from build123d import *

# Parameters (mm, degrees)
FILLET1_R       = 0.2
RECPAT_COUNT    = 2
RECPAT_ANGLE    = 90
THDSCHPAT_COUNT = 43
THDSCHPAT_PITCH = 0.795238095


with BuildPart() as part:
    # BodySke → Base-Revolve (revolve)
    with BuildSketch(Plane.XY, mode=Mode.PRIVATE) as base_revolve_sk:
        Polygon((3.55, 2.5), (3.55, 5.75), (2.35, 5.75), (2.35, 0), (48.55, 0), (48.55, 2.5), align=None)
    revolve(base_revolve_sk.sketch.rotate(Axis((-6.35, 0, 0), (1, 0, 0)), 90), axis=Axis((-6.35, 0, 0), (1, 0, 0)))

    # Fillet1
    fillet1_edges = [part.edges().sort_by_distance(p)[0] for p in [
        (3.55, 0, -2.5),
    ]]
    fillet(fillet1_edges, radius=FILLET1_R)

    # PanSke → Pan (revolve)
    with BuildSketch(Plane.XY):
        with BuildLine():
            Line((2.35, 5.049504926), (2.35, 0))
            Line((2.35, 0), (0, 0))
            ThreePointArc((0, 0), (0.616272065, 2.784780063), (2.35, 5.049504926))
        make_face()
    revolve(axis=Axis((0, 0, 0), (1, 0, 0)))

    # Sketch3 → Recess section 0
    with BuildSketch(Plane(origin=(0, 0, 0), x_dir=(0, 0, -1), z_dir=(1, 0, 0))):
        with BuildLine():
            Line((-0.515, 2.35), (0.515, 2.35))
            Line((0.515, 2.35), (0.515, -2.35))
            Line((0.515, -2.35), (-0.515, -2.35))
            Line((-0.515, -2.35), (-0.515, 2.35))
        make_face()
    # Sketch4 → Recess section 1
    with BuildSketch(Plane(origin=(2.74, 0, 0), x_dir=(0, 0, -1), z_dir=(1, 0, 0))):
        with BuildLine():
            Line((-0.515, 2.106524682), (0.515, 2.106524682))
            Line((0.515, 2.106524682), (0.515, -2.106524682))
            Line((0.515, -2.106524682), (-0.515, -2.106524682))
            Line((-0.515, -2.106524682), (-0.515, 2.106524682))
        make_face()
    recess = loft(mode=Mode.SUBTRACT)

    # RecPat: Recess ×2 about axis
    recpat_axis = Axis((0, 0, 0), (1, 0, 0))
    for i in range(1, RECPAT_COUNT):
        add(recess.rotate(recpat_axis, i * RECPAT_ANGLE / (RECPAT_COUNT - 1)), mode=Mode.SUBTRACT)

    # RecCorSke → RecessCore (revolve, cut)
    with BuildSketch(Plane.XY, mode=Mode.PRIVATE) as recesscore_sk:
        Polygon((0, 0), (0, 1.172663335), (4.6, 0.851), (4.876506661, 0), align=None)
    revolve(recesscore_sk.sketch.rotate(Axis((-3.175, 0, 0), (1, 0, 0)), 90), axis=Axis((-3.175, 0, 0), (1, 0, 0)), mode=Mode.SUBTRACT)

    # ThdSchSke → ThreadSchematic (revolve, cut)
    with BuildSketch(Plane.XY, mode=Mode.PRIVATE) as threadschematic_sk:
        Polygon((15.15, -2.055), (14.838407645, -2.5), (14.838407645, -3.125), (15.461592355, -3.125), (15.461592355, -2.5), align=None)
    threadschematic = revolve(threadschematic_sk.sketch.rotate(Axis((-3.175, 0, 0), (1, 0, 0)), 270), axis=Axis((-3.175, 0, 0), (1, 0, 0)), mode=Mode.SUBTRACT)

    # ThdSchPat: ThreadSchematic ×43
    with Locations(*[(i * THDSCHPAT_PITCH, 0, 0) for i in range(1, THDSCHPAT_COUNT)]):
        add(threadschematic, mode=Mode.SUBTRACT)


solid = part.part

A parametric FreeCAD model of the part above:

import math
import FreeCAD as App
import Part
import Sketcher
Q = App.Units.Quantity


def edges_at(feature, points):
    """Names of the edges that pass closest to the given points."""
    edges = feature.Shape.Edges
    near = lambda p: min(range(len(edges)), key=lambda i: edges[i].distToShape(Part.Vertex(*p))[0])
    return sorted({f"Edge{near(p) + 1}" for p in points})

doc = App.newDocument("Part")
params = doc.addObject("Spreadsheet::Sheet", "Params")
for row, (alias, value) in enumerate([
    ("sketch1_width", "45 mm"),
    ("sketch1_width2", "1.2 mm"),
    ("sketch1_height", "2.5 mm"),
    ("sketch1_height2", "3.25 mm"),
    ("revolution_angle", "360 deg"),
    ("fillet_radius", "0.2 mm"),
    ("sketch2_radius", "6.6 mm"),
    ("sketch2_width", "2.35 mm"),
    ("revolution2_angle", "360 deg"),
    ("sketch3_width", "4.7 mm"),
    ("sketch3_height", "1.03 mm"),
    ("sketch4_height", "1.03 mm"),
    ("groove_angle", "360 deg"),
    ("groove2_angle", "360 deg"),
    ("linearpattern_pitch", "0.795238 mm"),
], start=1):
    params.set(f"A{row}", alias)
    params.set(f"B{row}", "=" + value)
    params.setAlias(f"B{row}", alias)

body = doc.addObject("PartDesign::Body", "Body")

# Sketch on XY plane
sketch1 = body.newObject("Sketcher::SketchObject", "Sketch")
sketch1.AttachmentSupport = (doc.getObject("XY_Plane"), [""])
sketch1.MapMode = "FlatFace"
sketch1.addGeometry(Part.LineSegment(App.Vector(3.55, 2.5, 0), App.Vector(3.55, 5.75, 0)), False)
sketch1.addGeometry(Part.LineSegment(App.Vector(3.55, 5.75, 0), App.Vector(2.35, 5.75, 0)), False)
sketch1.addGeometry(Part.LineSegment(App.Vector(2.35, 5.75, 0), App.Vector(2.35, 0, 0)), False)
sketch1.addGeometry(Part.LineSegment(App.Vector(2.35, 0, 0), App.Vector(48.55, 0, 0)), False)
sketch1.addGeometry(Part.LineSegment(App.Vector(48.55, 0, 0), App.Vector(48.55, 2.5, 0)), False)
sketch1.addGeometry(Part.LineSegment(App.Vector(48.55, 2.5, 0), App.Vector(3.55, 2.5, 0)), False)
sketch1.addConstraint(Sketcher.Constraint("Coincident", 0, 2, 1, 1))
sketch1.addConstraint(Sketcher.Constraint("Coincident", 1, 2, 2, 1))
sketch1.addConstraint(Sketcher.Constraint("Coincident", 2, 2, 3, 1))
sketch1.addConstraint(Sketcher.Constraint("Coincident", 3, 2, 4, 1))
sketch1.addConstraint(Sketcher.Constraint("Coincident", 4, 2, 5, 1))
sketch1.addConstraint(Sketcher.Constraint("Coincident", 5, 2, 0, 1))
sketch1.addConstraint(Sketcher.Constraint("Vertical", 0))
sketch1.addConstraint(Sketcher.Constraint("Horizontal", 1))
sketch1.addConstraint(Sketcher.Constraint("Vertical", 2))
sketch1.addConstraint(Sketcher.Constraint("Horizontal", 3))
sketch1.addConstraint(Sketcher.Constraint("Vertical", 4))
sketch1.addConstraint(Sketcher.Constraint("Horizontal", 5))
sketch1.addConstraint(Sketcher.Constraint("PointOnObject", 2, 2, -1))
sketch1.addConstraint(Sketcher.Constraint("DistanceX", 5, 2, 5, 1, Q("45 mm")))
sketch1.addConstraint(Sketcher.Constraint("DistanceX", 1, 2, 1, 1, Q("1.2 mm")))
sketch1.addConstraint(Sketcher.Constraint("DistanceY", 4, 1, 4, 2, Q("2.5 mm")))
sketch1.addConstraint(Sketcher.Constraint("DistanceY", 0, 1, 0, 2, Q("3.25 mm")))
sketch1.addConstraint(Sketcher.Constraint("DistanceX", -1, 1, 0, 2, Q("3.55 mm")))
sketch1.setExpression("Constraints[13]", "Params.sketch1_width")
sketch1.setExpression("Constraints[14]", "Params.sketch1_width2")
sketch1.setExpression("Constraints[15]", "Params.sketch1_height")
sketch1.setExpression("Constraints[16]", "Params.sketch1_height2")
revolution = body.newObject("PartDesign::Revolution", "Revolution")
revolution.Profile = sketch1
revolution.ReferenceAxis = (sketch1, ["H_Axis"])
revolution.setExpression("Angle", "Params.revolution_angle")
doc.recompute()

fillet = body.newObject("PartDesign::Fillet", "Fillet")
fillet.Base = (revolution, edges_at(revolution, [(3.55, 0, -2.5)]))
fillet.setExpression("Radius", "Params.fillet_radius")

# Sketch on XY plane
sketch2 = body.newObject("Sketcher::SketchObject", "Sketch001")
sketch2.AttachmentSupport = (doc.getObject("XY_Plane"), [""])
sketch2.MapMode = "FlatFace"
sketch2.addGeometry(Part.LineSegment(App.Vector(2.35, 0, 0), App.Vector(2.35, 5.049505, 0)), False)
sketch2.addGeometry(Part.ArcOfCircle(Part.Circle(App.Vector(6.6, 0, 0), App.Vector(0, 0, 1), 6.6), math.radians(130.086201), math.radians(180)), False)
sketch2.addGeometry(Part.LineSegment(App.Vector(0, 0, 0), App.Vector(2.35, 0, 0)), False)
sketch2.addConstraint(Sketcher.Constraint("Coincident", 0, 2, 1, 1))
sketch2.addConstraint(Sketcher.Constraint("Coincident", 1, 2, 2, 1))
sketch2.addConstraint(Sketcher.Constraint("Coincident", 2, 2, 0, 1))
sketch2.addConstraint(Sketcher.Constraint("Vertical", 0))
sketch2.addConstraint(Sketcher.Constraint("Horizontal", 2))
sketch2.addConstraint(Sketcher.Constraint("Coincident", 1, 2, -1, 1))
sketch2.addConstraint(Sketcher.Constraint("PointOnObject", 1, 3, -1))
sketch2.addConstraint(Sketcher.Constraint("Radius", 1, Q("6.6 mm")))
sketch2.addConstraint(Sketcher.Constraint("DistanceX", 2, 1, 2, 2, Q("2.35 mm")))
sketch2.setExpression("Constraints[7]", "Params.sketch2_radius")
sketch2.setExpression("Constraints[8]", "Params.sketch2_width")
revolution2 = body.newObject("PartDesign::Revolution", "Revolution001")
revolution2.Profile = sketch2
revolution2.ReferenceAxis = (sketch2, ["H_Axis"])
revolution2.setExpression("Angle", "Params.revolution2_angle")

# Sketch on YZ plane
sketch3 = body.newObject("Sketcher::SketchObject", "Sketch002")
sketch3.AttachmentSupport = (doc.getObject("YZ_Plane"), [""])
sketch3.MapMode = "FlatFace"
sketch3.addGeometry(Part.LineSegment(App.Vector(2.35, -0.515, 0), App.Vector(2.35, 0.515, 0)), False)
sketch3.addGeometry(Part.LineSegment(App.Vector(2.35, 0.515, 0), App.Vector(-2.35, 0.515, 0)), False)
sketch3.addGeometry(Part.LineSegment(App.Vector(-2.35, 0.515, 0), App.Vector(-2.35, -0.515, 0)), False)
sketch3.addGeometry(Part.LineSegment(App.Vector(-2.35, -0.515, 0), App.Vector(2.35, -0.515, 0)), False)
sketch3.addConstraint(Sketcher.Constraint("Coincident", 0, 2, 1, 1))
sketch3.addConstraint(Sketcher.Constraint("Coincident", 1, 2, 2, 1))
sketch3.addConstraint(Sketcher.Constraint("Coincident", 2, 2, 3, 1))
sketch3.addConstraint(Sketcher.Constraint("Coincident", 3, 2, 0, 1))
sketch3.addConstraint(Sketcher.Constraint("Vertical", 0))
sketch3.addConstraint(Sketcher.Constraint("Horizontal", 1))
sketch3.addConstraint(Sketcher.Constraint("Vertical", 2))
sketch3.addConstraint(Sketcher.Constraint("Horizontal", 3))
sketch3.addConstraint(Sketcher.Constraint("Symmetric", 0, 2, 2, 2, -1, 1))
sketch3.addConstraint(Sketcher.Constraint("DistanceX", 1, 2, 1, 1, Q("4.7 mm")))
sketch3.addConstraint(Sketcher.Constraint("DistanceY", 0, 1, 0, 2, Q("1.03 mm")))
sketch3.setExpression("Constraints[9]", "Params.sketch3_width")
sketch3.setExpression("Constraints[10]", "Params.sketch3_height")

# Sketch on YZ plane
sketch4 = body.newObject("Sketcher::SketchObject", "Sketch003")
sketch4.AttachmentSupport = (doc.getObject("YZ_Plane"), [""])
sketch4.MapMode = "FlatFace"
sketch4.AttachmentOffset = App.Placement(App.Vector(0, 0, 2.74), App.Rotation())
sketch4.addGeometry(Part.LineSegment(App.Vector(2.106525, -0.515, 0), App.Vector(2.106525, 0.515, 0)), False)
sketch4.addGeometry(Part.LineSegment(App.Vector(2.106525, 0.515, 0), App.Vector(-2.106525, 0.515, 0)), False)
sketch4.addGeometry(Part.LineSegment(App.Vector(-2.106525, 0.515, 0), App.Vector(-2.106525, -0.515, 0)), False)
sketch4.addGeometry(Part.LineSegment(App.Vector(-2.106525, -0.515, 0), App.Vector(2.106525, -0.515, 0)), False)
sketch4.addConstraint(Sketcher.Constraint("Coincident", 0, 2, 1, 1))
sketch4.addConstraint(Sketcher.Constraint("Coincident", 1, 2, 2, 1))
sketch4.addConstraint(Sketcher.Constraint("Coincident", 2, 2, 3, 1))
sketch4.addConstraint(Sketcher.Constraint("Coincident", 3, 2, 0, 1))
sketch4.addConstraint(Sketcher.Constraint("Vertical", 0))
sketch4.addConstraint(Sketcher.Constraint("Horizontal", 1))
sketch4.addConstraint(Sketcher.Constraint("Vertical", 2))
sketch4.addConstraint(Sketcher.Constraint("Horizontal", 3))
sketch4.addConstraint(Sketcher.Constraint("Symmetric", 0, 2, 2, 2, -1, 1))
sketch4.addConstraint(Sketcher.Constraint("DistanceY", 0, 1, 0, 2, Q("1.03 mm")))
sketch4.addConstraint(Sketcher.Constraint("DistanceX", 1, 2, 1, 1, Q("4.213049 mm")))
sketch4.setExpression("Constraints[9]", "Params.sketch4_height")

subtractiveloft = body.newObject("PartDesign::SubtractiveLoft", "SubtractiveLoft")
subtractiveloft.Profile = sketch3
subtractiveloft.Sections = [sketch4]
doc.recompute()

polarpattern = body.newObject("PartDesign::PolarPattern", "PolarPattern")
polarpattern.Originals = [subtractiveloft]
polarpattern.Axis = (doc.getObject("X_Axis"), [""])
polarpattern.Angle = 90
polarpattern.Occurrences = 2
body.Tip = polarpattern

# Sketch on XY plane
sketch5 = body.newObject("Sketcher::SketchObject", "Sketch004")
sketch5.AttachmentSupport = (doc.getObject("XY_Plane"), [""])
sketch5.MapMode = "FlatFace"
sketch5.addGeometry(Part.LineSegment(App.Vector(0, 1.172663, 0), App.Vector(0, 0, 0)), False)
sketch5.addGeometry(Part.LineSegment(App.Vector(0, 0, 0), App.Vector(4.876507, 0, 0)), False)
sketch5.addGeometry(Part.LineSegment(App.Vector(4.876507, 0, 0), App.Vector(4.6, 0.851, 0)), False)
sketch5.addGeometry(Part.LineSegment(App.Vector(4.6, 0.851, 0), App.Vector(0, 1.172663, 0)), False)
sketch5.addConstraint(Sketcher.Constraint("Coincident", 0, 2, 1, 1))
sketch5.addConstraint(Sketcher.Constraint("Coincident", 1, 2, 2, 1))
sketch5.addConstraint(Sketcher.Constraint("Coincident", 2, 2, 3, 1))
sketch5.addConstraint(Sketcher.Constraint("Coincident", 3, 2, 0, 1))
sketch5.addConstraint(Sketcher.Constraint("Vertical", 0))
sketch5.addConstraint(Sketcher.Constraint("Horizontal", 1))
sketch5.addConstraint(Sketcher.Constraint("Coincident", 0, 2, -1, 1))
sketch5.addConstraint(Sketcher.Constraint("Angle", 2, Q("108 deg")))
sketch5.addConstraint(Sketcher.Constraint("Angle", 3, Q("176 deg")))
sketch5.addConstraint(Sketcher.Constraint("DistanceX", -1, 1, 2, 2, Q("4.6 mm")))
sketch5.addConstraint(Sketcher.Constraint("DistanceY", -1, 1, 2, 2, Q("0.851 mm")))
groove = body.newObject("PartDesign::Groove", "Groove")
groove.Profile = sketch5
groove.ReferenceAxis = (sketch5, ["H_Axis"])
groove.setExpression("Angle", "Params.groove_angle")

# Sketch on XY plane
sketch6 = body.newObject("Sketcher::SketchObject", "Sketch005")
sketch6.AttachmentSupport = (doc.getObject("XY_Plane"), [""])
sketch6.MapMode = "FlatFace"
sketch6.addGeometry(Part.LineSegment(App.Vector(15.15, -2.055, 0), App.Vector(14.838408, -2.5, 0)), False)
sketch6.addGeometry(Part.LineSegment(App.Vector(14.838408, -2.5, 0), App.Vector(14.838408, -3.125, 0)), False)
sketch6.addGeometry(Part.LineSegment(App.Vector(14.838408, -3.125, 0), App.Vector(15.461592, -3.125, 0)), False)
sketch6.addGeometry(Part.LineSegment(App.Vector(15.461592, -3.125, 0), App.Vector(15.461592, -2.5, 0)), False)
sketch6.addGeometry(Part.LineSegment(App.Vector(15.461592, -2.5, 0), App.Vector(15.15, -2.055, 0)), False)
sketch6.addConstraint(Sketcher.Constraint("Coincident", 0, 2, 1, 1))
sketch6.addConstraint(Sketcher.Constraint("Coincident", 1, 2, 2, 1))
sketch6.addConstraint(Sketcher.Constraint("Coincident", 2, 2, 3, 1))
sketch6.addConstraint(Sketcher.Constraint("Coincident", 3, 2, 4, 1))
sketch6.addConstraint(Sketcher.Constraint("Coincident", 4, 2, 0, 1))
sketch6.addConstraint(Sketcher.Constraint("Vertical", 1))
sketch6.addConstraint(Sketcher.Constraint("Horizontal", 2))
sketch6.addConstraint(Sketcher.Constraint("Vertical", 3))
sketch6.addConstraint(Sketcher.Constraint("Horizontal", 0, 2, 3, 2))
sketch6.addConstraint(Sketcher.Constraint("Equal", 0, 4))
sketch6.addConstraint(Sketcher.Constraint("Angle", 0, Q("-125 deg")))
sketch6.addConstraint(Sketcher.Constraint("DistanceY", 0, 2, -1, 1, Q("2.5 mm")))
sketch6.addConstraint(Sketcher.Constraint("DistanceY", 1, 2, 1, 1, Q("0.625 mm")))
sketch6.addConstraint(Sketcher.Constraint("DistanceX", -1, 1, 4, 2, Q("15.15 mm")))
sketch6.addConstraint(Sketcher.Constraint("DistanceY", 1, 2, 4, 2, Q("1.07 mm")))
groove2 = body.newObject("PartDesign::Groove", "Groove001")
groove2.Profile = sketch6
groove2.ReferenceAxis = (sketch6, ["H_Axis"])
groove2.setExpression("Angle", "Params.groove2_angle")
doc.recompute()

linearpattern = body.newObject("PartDesign::LinearPattern", "LinearPattern")
linearpattern.Originals = [groove2]
linearpattern.Direction = (doc.getObject("X_Axis"), [""])
linearpattern.Mode = "offset"
linearpattern.setExpression("Offset", "Params.linearpattern_pitch")
linearpattern.Occurrences = 43
body.Tip = linearpattern

doc.recompute()
